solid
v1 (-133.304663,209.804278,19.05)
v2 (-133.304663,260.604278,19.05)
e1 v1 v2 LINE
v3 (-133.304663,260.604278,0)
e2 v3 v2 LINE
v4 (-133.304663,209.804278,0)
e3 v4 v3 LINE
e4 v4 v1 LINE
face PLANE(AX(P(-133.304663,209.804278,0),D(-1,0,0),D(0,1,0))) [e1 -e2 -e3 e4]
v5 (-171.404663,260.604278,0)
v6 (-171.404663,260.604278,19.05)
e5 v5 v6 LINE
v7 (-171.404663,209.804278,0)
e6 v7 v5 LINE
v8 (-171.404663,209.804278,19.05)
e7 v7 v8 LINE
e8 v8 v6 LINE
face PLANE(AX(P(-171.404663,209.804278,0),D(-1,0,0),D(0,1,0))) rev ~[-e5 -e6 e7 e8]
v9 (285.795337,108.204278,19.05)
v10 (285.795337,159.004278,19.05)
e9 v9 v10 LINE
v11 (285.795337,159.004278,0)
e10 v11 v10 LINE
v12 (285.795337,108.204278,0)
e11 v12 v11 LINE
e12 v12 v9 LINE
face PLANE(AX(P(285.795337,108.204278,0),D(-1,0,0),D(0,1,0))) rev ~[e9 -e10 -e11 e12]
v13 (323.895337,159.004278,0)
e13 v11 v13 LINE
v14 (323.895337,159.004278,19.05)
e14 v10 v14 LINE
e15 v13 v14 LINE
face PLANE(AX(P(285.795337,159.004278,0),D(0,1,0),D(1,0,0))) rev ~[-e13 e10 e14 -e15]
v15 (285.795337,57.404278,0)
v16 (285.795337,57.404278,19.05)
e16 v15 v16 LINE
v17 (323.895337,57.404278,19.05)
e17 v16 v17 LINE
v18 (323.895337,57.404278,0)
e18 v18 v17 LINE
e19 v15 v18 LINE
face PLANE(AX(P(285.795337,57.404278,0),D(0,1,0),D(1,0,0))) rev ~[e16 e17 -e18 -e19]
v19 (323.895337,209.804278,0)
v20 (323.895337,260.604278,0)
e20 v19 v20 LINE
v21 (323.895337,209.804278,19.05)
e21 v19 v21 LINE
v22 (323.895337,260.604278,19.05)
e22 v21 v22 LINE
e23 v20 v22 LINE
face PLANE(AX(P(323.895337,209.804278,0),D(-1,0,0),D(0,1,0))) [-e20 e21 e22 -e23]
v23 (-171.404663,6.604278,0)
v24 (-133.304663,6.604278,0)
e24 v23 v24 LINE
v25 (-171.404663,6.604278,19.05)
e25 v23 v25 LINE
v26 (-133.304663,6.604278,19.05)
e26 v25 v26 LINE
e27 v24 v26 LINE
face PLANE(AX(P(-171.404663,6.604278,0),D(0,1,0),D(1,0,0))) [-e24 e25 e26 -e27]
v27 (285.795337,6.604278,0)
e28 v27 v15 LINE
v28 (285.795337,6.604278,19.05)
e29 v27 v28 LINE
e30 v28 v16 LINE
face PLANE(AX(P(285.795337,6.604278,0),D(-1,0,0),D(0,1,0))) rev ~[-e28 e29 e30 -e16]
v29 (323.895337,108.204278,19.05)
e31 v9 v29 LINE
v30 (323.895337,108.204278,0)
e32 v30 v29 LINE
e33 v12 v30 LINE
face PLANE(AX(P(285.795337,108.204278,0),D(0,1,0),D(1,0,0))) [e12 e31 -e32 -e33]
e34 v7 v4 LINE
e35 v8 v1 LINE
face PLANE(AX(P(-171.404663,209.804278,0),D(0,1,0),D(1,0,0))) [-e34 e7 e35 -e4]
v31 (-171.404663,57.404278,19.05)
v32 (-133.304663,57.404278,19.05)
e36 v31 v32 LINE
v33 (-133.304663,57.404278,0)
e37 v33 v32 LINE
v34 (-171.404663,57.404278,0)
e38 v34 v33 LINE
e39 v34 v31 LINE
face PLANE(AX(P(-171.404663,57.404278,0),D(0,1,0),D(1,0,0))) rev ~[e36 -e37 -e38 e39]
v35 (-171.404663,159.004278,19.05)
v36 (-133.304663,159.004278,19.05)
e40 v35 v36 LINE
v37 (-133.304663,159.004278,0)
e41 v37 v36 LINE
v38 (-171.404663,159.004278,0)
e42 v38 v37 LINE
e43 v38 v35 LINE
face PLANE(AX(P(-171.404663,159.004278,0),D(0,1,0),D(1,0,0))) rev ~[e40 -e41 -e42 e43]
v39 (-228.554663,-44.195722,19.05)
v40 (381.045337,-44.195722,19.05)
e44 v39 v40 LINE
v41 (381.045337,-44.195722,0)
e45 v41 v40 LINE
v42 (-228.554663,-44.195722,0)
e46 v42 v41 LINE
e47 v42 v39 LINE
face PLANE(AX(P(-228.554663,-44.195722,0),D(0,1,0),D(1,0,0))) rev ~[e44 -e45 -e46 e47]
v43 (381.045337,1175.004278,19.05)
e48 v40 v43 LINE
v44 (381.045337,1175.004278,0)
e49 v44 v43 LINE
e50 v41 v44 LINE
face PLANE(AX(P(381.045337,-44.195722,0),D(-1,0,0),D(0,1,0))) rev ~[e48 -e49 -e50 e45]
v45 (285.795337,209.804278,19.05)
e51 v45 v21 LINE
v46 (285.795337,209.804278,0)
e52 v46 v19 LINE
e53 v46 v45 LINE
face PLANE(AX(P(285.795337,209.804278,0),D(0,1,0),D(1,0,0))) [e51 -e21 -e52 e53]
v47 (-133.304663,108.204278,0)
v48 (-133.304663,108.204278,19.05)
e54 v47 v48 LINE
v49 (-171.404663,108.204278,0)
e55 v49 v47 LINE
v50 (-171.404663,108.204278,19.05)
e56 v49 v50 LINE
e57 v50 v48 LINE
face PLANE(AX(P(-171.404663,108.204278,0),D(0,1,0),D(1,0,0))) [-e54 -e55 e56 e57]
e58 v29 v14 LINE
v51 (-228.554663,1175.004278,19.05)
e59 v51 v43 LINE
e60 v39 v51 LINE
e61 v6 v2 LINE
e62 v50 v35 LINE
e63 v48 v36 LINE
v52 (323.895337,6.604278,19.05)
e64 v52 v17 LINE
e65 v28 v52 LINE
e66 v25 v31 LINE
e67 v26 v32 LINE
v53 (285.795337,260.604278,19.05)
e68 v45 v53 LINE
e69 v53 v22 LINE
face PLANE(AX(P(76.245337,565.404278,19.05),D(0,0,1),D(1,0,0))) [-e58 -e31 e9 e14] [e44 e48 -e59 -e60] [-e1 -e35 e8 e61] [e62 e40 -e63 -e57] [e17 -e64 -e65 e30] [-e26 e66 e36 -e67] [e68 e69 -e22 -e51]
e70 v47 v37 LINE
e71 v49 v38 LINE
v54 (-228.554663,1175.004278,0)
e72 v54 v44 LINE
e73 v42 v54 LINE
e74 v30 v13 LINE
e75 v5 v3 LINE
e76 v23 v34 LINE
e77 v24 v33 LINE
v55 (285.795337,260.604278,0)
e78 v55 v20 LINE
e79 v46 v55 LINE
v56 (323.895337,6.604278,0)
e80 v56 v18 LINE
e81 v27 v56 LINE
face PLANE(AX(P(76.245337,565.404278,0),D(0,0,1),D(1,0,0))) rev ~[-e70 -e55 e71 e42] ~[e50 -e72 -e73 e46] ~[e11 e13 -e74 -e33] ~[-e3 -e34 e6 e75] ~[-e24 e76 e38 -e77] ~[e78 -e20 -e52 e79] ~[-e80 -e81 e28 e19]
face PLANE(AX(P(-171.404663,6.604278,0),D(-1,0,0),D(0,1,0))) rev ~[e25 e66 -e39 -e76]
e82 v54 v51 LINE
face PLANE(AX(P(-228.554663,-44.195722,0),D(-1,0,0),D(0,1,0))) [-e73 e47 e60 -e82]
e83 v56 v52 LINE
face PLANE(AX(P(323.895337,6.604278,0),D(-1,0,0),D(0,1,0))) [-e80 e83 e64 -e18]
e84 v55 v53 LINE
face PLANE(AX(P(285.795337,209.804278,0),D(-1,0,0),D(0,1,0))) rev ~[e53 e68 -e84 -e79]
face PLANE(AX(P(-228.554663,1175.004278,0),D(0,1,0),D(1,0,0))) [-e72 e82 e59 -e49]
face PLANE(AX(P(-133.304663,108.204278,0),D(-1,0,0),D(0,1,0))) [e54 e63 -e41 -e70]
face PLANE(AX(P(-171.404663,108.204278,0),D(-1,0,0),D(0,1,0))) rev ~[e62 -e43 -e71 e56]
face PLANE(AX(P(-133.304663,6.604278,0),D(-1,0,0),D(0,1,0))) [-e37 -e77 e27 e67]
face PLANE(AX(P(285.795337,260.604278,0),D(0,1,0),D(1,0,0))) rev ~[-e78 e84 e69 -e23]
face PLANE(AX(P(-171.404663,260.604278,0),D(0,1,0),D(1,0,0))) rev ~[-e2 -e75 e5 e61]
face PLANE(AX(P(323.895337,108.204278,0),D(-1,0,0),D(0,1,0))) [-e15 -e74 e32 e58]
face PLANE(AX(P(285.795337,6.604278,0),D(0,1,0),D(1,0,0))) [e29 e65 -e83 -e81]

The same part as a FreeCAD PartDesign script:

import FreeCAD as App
import Part
import Sketcher
from FreeCAD import Vector
Q = App.Units.Quantity


def add_polygon(sketch, points):
    """Adds a closed chain of lines whose ends are joined by coincident constraints."""
    first, n = sketch.GeometryCount, len(points)
    for a, b in zip(points, points[1:] + points[:1]):
        sketch.addGeometry(Part.LineSegment(App.Vector(*a, 0), App.Vector(*b, 0)), False)
    for i in range(n):
        sketch.addConstraint(Sketcher.Constraint("Coincident", first + i, 2, first + (i + 1) % n, 1))

doc = App.newDocument("Part")
body = doc.addObject("PartDesign::Body", "Body")

sketch1 = doc.addObject("Sketcher::SketchObject", "Sketch")
body.addObject(sketch1)
sketch1.AttachmentSupport = (doc.XY_Plane, [""])
sketch1.MapMode = "FlatFace"
add_polygon(sketch1, [(-229, 1175), (-229, -44), (381, -44), (381, 1175)])
add_polygon(sketch1, [(-133, 7), (-171, 7), (-171, 57), (-133, 57)])
add_polygon(sketch1, [(324, 7), (286, 7), (286, 57), (324, 57)])
add_polygon(sketch1, [(-133, 108), (-171, 108), (-171, 159), (-133, 159)])
add_polygon(sketch1, [(-133, 210), (-171, 210), (-171, 261), (-133, 261)])
add_polygon(sketch1, [(324, 108), (286, 108), (286, 159), (324, 159)])
add_polygon(sketch1, [(324, 210), (286, 210), (286, 261), (324, 261)])
sketch1.addConstraint([
    Sketcher.Constraint("Vertical", 0),
    Sketcher.Constraint("Horizontal", 1),
    Sketcher.Constraint("Vertical", 2),
    Sketcher.Constraint("Horizontal", 3),
    Sketcher.Constraint("Horizontal", 4),
    Sketcher.Constraint("Vertical", 5),
    Sketcher.Constraint("Horizontal", 6),
    Sketcher.Constraint("Vertical", 7),
    Sketcher.Constraint("Horizontal", 8),
    Sketcher.Constraint("Vertical", 9),
    Sketcher.Constraint("Horizontal", 10),
    Sketcher.Constraint("Vertical", 11),
    Sketcher.Constraint("Horizontal", 12),
    Sketcher.Constraint("Vertical", 13),
    Sketcher.Constraint("Horizontal", 14),
    Sketcher.Constraint("Vertical", 15),
    Sketcher.Constraint("Horizontal", 16),
    Sketcher.Constraint("Vertical", 17),
    Sketcher.Constraint("Horizontal", 18),
    Sketcher.Constraint("Vertical", 19),
    Sketcher.Constraint("Horizontal", 20),
    Sketcher.Constraint("Vertical", 21),
    Sketcher.Constraint("Horizontal", 22),
    Sketcher.Constraint("Vertical", 23),
    Sketcher.Constraint("Horizontal", 24),
    Sketcher.Constraint("Vertical", 25),
    Sketcher.Constraint("Horizontal", 26),
    Sketcher.Constraint("Vertical", 27),
    Sketcher.Constraint("Horizontal", 7, 2, 8, 2),
    Sketcher.Constraint("Horizontal", 6, 2, 9, 2),
    Sketcher.Constraint("Horizontal", 15, 2, 20, 2),
    Sketcher.Constraint("Horizontal", 14, 2, 21, 2),
    Sketcher.Constraint("Horizontal", 19, 2, 24, 2),
    Sketcher.Constraint("Horizontal", 18, 2, 25, 2),
    Sketcher.Constraint("Vertical", 5, 2, 12, 2),
    Sketcher.Constraint("Vertical", 7, 2, 14, 2),
    Sketcher.Constraint("Vertical", 13, 2, 16, 2),
    Sketcher.Constraint("Vertical", 15, 2, 18, 2),
    Sketcher.Constraint("Vertical", 9, 2, 20, 2),
    Sketcher.Constraint("Vertical", 11, 2, 22, 2),
    Sketcher.Constraint("Vertical", 21, 2, 24, 2),
    Sketcher.Constraint("Vertical", 23, 2, 26, 2),
    Sketcher.Constraint("Equal", 6, 8),
    Sketcher.Constraint("Equal", 11, 13),
    Sketcher.Constraint("Equal", 15, 17),
    Sketcher.Constraint("DistanceX", 1, 1, 1, 2, Q("24 in")),
    Sketcher.Constraint("DistanceY", 0, 2, 0, 1, Q("48 in")),
    Sketcher.Constraint("DistanceY", 5, 1, 5, 2, Q("2 in")),
    Sketcher.Constraint("DistanceX", 4, 2, 4, 1, Q("1.5 in")),
    Sketcher.Constraint("DistanceY", 0, 2, 4, 2, Q("2 in")),
    Sketcher.Constraint("DistanceX", 4, 2, 8, 2, Q("18 in")),
    Sketcher.Constraint("DistanceY", 5, 2, 12, 2, Q("2 in")),
    Sketcher.Constraint("DistanceY", 13, 2, 16, 2, Q("2 in")),
    Sketcher.Constraint("DistanceX", 0, 2, 4, 2, Q("2.25 in")),
    Sketcher.Constraint("DistanceY", -1, 1, 2, 2, 1175.004278),
    Sketcher.Constraint("DistanceX", 0, 2, -1, 1, 228.554663),
])
pad1 = doc.addObject("PartDesign::Pad", "Pad")
body.addObject(pad1)
pad1.Profile = sketch1
pad1.Length = Q("0.75 in")

doc.recompute()
